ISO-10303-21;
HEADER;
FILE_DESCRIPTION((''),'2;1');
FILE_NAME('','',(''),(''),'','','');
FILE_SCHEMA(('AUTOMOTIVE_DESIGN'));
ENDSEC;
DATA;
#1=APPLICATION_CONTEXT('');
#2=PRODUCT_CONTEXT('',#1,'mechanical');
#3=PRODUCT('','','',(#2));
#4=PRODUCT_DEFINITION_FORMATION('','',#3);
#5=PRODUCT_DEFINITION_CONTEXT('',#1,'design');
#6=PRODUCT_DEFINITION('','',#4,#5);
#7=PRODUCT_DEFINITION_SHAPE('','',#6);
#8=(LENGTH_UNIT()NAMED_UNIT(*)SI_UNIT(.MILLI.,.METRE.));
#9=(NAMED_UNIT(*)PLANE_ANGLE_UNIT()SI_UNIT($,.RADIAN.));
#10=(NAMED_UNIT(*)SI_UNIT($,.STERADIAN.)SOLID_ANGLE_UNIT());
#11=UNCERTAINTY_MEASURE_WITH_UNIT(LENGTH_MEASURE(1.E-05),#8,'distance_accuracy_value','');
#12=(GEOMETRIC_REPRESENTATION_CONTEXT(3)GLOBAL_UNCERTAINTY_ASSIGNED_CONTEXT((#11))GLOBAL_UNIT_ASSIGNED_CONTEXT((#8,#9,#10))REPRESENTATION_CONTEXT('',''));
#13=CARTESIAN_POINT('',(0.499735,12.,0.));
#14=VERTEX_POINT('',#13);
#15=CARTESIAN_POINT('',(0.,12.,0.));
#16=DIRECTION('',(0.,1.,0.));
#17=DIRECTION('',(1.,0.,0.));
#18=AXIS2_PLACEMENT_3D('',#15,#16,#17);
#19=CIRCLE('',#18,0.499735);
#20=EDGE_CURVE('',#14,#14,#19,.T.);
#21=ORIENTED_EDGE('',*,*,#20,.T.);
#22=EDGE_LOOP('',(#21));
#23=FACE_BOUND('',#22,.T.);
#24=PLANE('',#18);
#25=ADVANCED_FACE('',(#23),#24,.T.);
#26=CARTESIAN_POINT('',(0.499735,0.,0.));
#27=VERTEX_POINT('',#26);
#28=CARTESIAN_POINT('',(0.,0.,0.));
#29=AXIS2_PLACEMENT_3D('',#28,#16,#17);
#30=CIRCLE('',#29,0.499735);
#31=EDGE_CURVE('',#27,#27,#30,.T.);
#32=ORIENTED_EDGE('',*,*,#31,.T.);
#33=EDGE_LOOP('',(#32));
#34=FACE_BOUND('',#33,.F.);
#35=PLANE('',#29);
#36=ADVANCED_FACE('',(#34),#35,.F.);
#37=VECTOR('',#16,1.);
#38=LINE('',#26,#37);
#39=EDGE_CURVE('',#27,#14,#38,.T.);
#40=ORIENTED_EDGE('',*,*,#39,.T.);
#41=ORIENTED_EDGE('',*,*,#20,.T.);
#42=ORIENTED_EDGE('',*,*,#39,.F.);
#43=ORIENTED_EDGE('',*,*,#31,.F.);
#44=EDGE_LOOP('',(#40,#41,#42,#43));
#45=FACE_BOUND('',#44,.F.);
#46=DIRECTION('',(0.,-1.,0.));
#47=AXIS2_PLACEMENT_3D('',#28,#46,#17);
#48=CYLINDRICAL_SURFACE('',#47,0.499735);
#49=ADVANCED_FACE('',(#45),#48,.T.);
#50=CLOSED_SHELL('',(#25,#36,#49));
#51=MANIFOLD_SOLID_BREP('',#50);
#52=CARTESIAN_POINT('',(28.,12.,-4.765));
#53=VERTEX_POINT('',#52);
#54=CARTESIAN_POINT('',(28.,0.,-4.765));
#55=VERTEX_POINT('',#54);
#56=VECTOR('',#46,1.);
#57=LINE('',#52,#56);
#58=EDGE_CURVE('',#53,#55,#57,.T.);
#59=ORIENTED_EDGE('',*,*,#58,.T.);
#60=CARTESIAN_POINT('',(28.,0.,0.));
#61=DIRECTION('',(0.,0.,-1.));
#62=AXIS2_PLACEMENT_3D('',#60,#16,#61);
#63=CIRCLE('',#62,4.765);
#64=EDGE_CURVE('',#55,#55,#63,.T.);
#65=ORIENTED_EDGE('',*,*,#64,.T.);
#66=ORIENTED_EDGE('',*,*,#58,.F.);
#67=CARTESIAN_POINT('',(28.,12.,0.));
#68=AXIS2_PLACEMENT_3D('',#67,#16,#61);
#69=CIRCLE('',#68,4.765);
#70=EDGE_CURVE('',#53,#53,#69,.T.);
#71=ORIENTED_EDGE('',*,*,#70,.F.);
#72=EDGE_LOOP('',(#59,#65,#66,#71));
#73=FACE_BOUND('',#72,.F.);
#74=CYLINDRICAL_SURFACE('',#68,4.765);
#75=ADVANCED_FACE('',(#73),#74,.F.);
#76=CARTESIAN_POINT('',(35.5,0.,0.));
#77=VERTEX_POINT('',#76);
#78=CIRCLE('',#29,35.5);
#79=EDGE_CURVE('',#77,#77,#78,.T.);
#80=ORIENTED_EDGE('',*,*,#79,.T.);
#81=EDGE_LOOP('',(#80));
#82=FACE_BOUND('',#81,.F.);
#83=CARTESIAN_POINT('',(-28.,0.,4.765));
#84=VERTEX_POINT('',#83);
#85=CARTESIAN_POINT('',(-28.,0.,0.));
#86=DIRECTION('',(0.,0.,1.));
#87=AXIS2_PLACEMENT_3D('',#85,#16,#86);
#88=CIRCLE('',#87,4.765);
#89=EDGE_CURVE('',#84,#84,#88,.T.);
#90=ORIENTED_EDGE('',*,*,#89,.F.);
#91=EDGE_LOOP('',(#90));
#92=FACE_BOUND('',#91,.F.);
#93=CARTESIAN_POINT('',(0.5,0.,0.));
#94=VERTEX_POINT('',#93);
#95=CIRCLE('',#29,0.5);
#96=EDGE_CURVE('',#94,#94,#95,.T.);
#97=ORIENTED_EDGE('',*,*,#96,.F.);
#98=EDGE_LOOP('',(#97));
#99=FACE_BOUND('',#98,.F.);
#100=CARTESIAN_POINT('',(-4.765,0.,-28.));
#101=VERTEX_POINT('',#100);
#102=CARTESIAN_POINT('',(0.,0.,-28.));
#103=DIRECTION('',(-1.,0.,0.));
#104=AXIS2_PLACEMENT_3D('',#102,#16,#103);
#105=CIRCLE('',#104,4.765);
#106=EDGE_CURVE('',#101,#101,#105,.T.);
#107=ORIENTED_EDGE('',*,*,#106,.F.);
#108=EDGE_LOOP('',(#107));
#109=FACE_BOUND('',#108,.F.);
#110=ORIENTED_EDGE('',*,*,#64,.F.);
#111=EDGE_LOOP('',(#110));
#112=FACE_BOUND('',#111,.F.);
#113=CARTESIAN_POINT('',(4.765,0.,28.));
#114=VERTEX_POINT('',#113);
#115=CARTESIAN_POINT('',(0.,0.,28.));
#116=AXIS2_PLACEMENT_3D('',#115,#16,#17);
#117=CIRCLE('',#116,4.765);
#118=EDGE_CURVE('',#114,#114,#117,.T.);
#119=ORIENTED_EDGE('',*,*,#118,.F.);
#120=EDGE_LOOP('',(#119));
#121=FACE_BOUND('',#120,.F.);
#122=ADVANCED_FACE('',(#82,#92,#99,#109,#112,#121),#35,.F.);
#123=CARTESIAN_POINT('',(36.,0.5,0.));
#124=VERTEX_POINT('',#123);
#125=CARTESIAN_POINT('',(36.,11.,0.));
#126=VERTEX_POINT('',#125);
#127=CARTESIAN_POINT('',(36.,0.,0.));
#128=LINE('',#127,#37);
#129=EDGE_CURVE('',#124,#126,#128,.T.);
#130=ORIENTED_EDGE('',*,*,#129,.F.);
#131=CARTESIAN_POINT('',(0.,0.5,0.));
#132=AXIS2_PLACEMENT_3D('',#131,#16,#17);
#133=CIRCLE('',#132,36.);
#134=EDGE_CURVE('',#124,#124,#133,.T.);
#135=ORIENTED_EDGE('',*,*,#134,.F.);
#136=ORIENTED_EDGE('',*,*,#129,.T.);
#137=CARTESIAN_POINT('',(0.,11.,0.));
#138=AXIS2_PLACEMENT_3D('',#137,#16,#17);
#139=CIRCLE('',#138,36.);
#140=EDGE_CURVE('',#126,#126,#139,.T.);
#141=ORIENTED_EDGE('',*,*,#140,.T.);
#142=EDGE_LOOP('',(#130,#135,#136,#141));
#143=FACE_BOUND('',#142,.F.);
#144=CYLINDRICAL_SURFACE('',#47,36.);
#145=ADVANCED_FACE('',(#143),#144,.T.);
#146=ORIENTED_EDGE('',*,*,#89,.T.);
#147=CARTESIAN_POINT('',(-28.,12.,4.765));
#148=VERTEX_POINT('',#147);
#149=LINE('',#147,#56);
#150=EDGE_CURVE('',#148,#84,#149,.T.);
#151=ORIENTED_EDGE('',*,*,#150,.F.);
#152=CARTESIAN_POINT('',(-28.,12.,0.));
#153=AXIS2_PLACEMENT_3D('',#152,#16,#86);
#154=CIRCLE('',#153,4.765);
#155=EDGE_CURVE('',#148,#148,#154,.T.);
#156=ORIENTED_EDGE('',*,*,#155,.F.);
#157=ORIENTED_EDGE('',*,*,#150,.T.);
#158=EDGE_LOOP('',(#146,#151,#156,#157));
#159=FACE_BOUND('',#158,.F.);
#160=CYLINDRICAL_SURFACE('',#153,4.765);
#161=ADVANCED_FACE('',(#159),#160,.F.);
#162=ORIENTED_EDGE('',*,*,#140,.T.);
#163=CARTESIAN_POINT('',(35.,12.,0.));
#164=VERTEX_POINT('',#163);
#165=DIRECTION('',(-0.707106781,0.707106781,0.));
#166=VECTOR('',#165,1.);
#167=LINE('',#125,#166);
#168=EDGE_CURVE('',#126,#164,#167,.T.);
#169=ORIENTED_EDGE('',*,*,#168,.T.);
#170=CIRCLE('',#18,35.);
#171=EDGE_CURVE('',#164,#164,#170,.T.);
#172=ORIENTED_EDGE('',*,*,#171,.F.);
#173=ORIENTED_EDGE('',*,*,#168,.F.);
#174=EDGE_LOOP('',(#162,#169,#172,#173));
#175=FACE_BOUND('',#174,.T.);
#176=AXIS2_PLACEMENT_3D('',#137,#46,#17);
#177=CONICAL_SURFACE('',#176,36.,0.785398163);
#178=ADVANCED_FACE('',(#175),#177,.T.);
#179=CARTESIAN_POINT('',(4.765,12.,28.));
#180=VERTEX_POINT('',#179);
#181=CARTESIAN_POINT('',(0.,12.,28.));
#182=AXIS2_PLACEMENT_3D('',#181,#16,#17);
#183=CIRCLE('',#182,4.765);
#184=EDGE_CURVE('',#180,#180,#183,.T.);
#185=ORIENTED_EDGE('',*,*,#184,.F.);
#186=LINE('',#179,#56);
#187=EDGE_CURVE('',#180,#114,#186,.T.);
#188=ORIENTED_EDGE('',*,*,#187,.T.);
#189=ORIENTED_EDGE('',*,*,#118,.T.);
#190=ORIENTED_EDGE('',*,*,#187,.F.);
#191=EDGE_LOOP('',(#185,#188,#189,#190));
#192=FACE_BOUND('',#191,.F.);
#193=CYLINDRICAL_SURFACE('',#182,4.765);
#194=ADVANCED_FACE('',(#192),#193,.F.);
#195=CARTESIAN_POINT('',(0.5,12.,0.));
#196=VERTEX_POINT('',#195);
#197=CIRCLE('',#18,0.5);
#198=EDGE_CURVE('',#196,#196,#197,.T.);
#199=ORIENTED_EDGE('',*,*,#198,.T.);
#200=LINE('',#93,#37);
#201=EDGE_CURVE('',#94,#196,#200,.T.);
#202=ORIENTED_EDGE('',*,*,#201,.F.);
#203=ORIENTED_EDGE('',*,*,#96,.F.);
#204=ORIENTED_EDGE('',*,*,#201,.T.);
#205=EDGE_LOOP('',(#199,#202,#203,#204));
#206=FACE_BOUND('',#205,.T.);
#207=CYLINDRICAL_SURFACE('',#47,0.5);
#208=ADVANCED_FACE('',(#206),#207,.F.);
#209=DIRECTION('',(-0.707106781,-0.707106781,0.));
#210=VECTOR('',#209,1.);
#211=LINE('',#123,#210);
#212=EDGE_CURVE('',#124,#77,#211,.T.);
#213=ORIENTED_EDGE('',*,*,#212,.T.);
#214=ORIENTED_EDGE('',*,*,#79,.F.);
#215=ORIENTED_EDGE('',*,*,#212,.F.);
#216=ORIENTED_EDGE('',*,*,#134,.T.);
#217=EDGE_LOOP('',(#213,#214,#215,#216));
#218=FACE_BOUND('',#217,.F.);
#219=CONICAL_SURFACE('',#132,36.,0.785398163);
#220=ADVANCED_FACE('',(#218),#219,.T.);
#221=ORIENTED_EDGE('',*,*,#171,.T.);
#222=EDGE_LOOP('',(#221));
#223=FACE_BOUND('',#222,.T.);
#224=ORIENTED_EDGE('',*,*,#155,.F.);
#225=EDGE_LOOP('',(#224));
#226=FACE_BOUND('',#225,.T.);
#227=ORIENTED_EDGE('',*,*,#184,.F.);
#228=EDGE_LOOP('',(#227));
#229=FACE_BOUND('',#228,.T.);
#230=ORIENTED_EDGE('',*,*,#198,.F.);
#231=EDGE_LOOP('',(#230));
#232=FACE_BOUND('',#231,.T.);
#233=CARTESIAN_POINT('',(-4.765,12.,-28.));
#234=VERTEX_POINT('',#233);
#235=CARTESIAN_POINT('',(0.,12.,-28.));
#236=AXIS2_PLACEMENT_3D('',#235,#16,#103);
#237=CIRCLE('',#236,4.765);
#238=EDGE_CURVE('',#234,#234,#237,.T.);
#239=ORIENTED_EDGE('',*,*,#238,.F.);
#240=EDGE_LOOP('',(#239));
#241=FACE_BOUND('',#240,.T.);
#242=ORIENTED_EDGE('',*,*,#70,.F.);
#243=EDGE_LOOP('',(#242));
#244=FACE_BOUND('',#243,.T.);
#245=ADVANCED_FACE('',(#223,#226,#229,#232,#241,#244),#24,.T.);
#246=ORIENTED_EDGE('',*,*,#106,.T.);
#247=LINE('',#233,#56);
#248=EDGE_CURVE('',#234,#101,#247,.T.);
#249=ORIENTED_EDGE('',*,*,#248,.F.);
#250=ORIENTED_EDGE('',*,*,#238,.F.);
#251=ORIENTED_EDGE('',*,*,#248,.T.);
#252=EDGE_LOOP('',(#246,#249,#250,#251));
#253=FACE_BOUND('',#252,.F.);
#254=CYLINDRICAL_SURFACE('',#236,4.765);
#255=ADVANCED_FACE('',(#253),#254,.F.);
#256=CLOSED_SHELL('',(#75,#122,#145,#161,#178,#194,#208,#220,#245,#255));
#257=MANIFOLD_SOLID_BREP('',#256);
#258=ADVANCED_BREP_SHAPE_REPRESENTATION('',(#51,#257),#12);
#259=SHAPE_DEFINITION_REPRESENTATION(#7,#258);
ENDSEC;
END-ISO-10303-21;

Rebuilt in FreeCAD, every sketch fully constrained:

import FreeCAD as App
import Part
import Sketcher

V = App.Vector


def edges_at(feature, points):
    """Names of the edges that pass closest to the given points."""
    edges = feature.Shape.Edges
    near = lambda p: min(range(len(edges)), key=lambda i: edges[i].distToShape(Part.Vertex(*p))[0])
    return sorted({f"Edge{near(p) + 1}" for p in points})

doc = App.newDocument("Part")
params = doc.addObject("Spreadsheet::Sheet", "Params")
for row, (alias, value) in enumerate([
    ("sketch1_diameter", "72 mm"),
    ("sketch1_diameter2", "1 mm"),
    ("pad1_length", "12 mm"),
    ("sketch2_diameter", "9.53 mm"),
    ("pocket1_length", "12 mm"),
    ("chamfer_size", "1 mm"),
    ("chamfer2_size", "0.5 mm"),
    ("pad2_length", "12 mm"),
], start=1):
    params.set(f"A{row}", alias)
    params.set(f"B{row}", "=" + value)
    params.setAlias(f"B{row}", alias)

body = doc.addObject("PartDesign::Body", "Body")

# Sketch on XZ plane
sketch1 = body.newObject("Sketcher::SketchObject", "Sketch")
sketch1.AttachmentSupport = (doc.getObject("XZ_Plane"), [""])
sketch1.MapMode = "FlatFace"
sketch1.addGeometry([
    Part.Circle(V(0, 0, 0), V(0, 0, 1), 36),
    Part.Circle(V(0, 0, 0), V(0, 0, 1), 0.5),
], False)
sketch1.addConstraint([
    Sketcher.Constraint("Coincident", 0, 3, -1, 1),
    Sketcher.Constraint("Coincident", 1, 3, -1, 1),
    Sketcher.Constraint("Diameter", 0, 72.0),
    Sketcher.Constraint("Diameter", 1, 1.0),
])
sketch1.setExpression("Constraints[2]", "Params.sketch1_diameter")
sketch1.setExpression("Constraints[3]", "Params.sketch1_diameter2")
pad1 = body.newObject("PartDesign::Pad", "Pad")
pad1.Profile = sketch1
pad1.setExpression("Length", "Params.pad1_length")
pad1.Reversed = True

# Sketch on XZ plane
sketch2 = body.newObject("Sketcher::SketchObject", "Sketch001")
sketch2.AttachmentSupport = (doc.getObject("XZ_Plane"), [""])
sketch2.MapMode = "FlatFace"
sketch2.AttachmentOffset = App.Placement(V(0, 0, -12), App.Rotation())
sketch2.addGeometry(Part.Circle(V(0, 28, 0), V(0, 0, 1), 4.8), False)
sketch2.addConstraint([
    Sketcher.Constraint("PointOnObject", 0, 3, -2),
    Sketcher.Constraint("Diameter", 0, 9.53),
    Sketcher.Constraint("DistanceY", -1, 1, 0, 3, 28.0),
])
sketch2.setExpression("Constraints[1]", "Params.sketch2_diameter")
pocket1 = body.newObject("PartDesign::Pocket", "Pocket")
pocket1.Profile = sketch2
pocket1.setExpression("Length", "Params.pocket1_length")
pocket1.Reversed = True
doc.recompute()

polarpattern = body.newObject("PartDesign::PolarPattern", "PolarPattern")
polarpattern.Originals = [pocket1]
polarpattern.Axis = (doc.getObject("Y_Axis"), [""])
polarpattern.Angle = 360
polarpattern.Occurrences = 4
body.Tip = polarpattern
doc.recompute()

chamfer = body.newObject("PartDesign::Chamfer", "Chamfer")
chamfer.Base = (polarpattern, edges_at(polarpattern, [(-36, 12, 0)]))
chamfer.setExpression("Size", "Params.chamfer_size")
doc.recompute()

chamfer2 = body.newObject("PartDesign::Chamfer", "Chamfer001")
chamfer2.Base = (chamfer, edges_at(chamfer, [(-36, 0, 0)]))
chamfer2.setExpression("Size", "Params.chamfer2_size")
body2 = doc.addObject("PartDesign::Body", "Body001")

# Sketch on XZ plane
sketch3 = body2.newObject("Sketcher::SketchObject", "Sketch002")
sketch3.AttachmentSupport = (doc.getObject("XZ_Plane001"), [""])
sketch3.MapMode = "FlatFace"
sketch3.addGeometry(Part.Circle(V(0, 0, 0), V(0, 0, 1), 0.5), False)
sketch3.addConstraint([
    Sketcher.Constraint("Coincident", 0, 3, -1, 1),
    Sketcher.Constraint("Diameter", 0, 0.999471),
])
pad2 = body2.newObject("PartDesign::Pad", "Pad001")
pad2.Profile = sketch3
pad2.setExpression("Length", "Params.pad2_length")
pad2.Reversed = True

doc.recompute()
